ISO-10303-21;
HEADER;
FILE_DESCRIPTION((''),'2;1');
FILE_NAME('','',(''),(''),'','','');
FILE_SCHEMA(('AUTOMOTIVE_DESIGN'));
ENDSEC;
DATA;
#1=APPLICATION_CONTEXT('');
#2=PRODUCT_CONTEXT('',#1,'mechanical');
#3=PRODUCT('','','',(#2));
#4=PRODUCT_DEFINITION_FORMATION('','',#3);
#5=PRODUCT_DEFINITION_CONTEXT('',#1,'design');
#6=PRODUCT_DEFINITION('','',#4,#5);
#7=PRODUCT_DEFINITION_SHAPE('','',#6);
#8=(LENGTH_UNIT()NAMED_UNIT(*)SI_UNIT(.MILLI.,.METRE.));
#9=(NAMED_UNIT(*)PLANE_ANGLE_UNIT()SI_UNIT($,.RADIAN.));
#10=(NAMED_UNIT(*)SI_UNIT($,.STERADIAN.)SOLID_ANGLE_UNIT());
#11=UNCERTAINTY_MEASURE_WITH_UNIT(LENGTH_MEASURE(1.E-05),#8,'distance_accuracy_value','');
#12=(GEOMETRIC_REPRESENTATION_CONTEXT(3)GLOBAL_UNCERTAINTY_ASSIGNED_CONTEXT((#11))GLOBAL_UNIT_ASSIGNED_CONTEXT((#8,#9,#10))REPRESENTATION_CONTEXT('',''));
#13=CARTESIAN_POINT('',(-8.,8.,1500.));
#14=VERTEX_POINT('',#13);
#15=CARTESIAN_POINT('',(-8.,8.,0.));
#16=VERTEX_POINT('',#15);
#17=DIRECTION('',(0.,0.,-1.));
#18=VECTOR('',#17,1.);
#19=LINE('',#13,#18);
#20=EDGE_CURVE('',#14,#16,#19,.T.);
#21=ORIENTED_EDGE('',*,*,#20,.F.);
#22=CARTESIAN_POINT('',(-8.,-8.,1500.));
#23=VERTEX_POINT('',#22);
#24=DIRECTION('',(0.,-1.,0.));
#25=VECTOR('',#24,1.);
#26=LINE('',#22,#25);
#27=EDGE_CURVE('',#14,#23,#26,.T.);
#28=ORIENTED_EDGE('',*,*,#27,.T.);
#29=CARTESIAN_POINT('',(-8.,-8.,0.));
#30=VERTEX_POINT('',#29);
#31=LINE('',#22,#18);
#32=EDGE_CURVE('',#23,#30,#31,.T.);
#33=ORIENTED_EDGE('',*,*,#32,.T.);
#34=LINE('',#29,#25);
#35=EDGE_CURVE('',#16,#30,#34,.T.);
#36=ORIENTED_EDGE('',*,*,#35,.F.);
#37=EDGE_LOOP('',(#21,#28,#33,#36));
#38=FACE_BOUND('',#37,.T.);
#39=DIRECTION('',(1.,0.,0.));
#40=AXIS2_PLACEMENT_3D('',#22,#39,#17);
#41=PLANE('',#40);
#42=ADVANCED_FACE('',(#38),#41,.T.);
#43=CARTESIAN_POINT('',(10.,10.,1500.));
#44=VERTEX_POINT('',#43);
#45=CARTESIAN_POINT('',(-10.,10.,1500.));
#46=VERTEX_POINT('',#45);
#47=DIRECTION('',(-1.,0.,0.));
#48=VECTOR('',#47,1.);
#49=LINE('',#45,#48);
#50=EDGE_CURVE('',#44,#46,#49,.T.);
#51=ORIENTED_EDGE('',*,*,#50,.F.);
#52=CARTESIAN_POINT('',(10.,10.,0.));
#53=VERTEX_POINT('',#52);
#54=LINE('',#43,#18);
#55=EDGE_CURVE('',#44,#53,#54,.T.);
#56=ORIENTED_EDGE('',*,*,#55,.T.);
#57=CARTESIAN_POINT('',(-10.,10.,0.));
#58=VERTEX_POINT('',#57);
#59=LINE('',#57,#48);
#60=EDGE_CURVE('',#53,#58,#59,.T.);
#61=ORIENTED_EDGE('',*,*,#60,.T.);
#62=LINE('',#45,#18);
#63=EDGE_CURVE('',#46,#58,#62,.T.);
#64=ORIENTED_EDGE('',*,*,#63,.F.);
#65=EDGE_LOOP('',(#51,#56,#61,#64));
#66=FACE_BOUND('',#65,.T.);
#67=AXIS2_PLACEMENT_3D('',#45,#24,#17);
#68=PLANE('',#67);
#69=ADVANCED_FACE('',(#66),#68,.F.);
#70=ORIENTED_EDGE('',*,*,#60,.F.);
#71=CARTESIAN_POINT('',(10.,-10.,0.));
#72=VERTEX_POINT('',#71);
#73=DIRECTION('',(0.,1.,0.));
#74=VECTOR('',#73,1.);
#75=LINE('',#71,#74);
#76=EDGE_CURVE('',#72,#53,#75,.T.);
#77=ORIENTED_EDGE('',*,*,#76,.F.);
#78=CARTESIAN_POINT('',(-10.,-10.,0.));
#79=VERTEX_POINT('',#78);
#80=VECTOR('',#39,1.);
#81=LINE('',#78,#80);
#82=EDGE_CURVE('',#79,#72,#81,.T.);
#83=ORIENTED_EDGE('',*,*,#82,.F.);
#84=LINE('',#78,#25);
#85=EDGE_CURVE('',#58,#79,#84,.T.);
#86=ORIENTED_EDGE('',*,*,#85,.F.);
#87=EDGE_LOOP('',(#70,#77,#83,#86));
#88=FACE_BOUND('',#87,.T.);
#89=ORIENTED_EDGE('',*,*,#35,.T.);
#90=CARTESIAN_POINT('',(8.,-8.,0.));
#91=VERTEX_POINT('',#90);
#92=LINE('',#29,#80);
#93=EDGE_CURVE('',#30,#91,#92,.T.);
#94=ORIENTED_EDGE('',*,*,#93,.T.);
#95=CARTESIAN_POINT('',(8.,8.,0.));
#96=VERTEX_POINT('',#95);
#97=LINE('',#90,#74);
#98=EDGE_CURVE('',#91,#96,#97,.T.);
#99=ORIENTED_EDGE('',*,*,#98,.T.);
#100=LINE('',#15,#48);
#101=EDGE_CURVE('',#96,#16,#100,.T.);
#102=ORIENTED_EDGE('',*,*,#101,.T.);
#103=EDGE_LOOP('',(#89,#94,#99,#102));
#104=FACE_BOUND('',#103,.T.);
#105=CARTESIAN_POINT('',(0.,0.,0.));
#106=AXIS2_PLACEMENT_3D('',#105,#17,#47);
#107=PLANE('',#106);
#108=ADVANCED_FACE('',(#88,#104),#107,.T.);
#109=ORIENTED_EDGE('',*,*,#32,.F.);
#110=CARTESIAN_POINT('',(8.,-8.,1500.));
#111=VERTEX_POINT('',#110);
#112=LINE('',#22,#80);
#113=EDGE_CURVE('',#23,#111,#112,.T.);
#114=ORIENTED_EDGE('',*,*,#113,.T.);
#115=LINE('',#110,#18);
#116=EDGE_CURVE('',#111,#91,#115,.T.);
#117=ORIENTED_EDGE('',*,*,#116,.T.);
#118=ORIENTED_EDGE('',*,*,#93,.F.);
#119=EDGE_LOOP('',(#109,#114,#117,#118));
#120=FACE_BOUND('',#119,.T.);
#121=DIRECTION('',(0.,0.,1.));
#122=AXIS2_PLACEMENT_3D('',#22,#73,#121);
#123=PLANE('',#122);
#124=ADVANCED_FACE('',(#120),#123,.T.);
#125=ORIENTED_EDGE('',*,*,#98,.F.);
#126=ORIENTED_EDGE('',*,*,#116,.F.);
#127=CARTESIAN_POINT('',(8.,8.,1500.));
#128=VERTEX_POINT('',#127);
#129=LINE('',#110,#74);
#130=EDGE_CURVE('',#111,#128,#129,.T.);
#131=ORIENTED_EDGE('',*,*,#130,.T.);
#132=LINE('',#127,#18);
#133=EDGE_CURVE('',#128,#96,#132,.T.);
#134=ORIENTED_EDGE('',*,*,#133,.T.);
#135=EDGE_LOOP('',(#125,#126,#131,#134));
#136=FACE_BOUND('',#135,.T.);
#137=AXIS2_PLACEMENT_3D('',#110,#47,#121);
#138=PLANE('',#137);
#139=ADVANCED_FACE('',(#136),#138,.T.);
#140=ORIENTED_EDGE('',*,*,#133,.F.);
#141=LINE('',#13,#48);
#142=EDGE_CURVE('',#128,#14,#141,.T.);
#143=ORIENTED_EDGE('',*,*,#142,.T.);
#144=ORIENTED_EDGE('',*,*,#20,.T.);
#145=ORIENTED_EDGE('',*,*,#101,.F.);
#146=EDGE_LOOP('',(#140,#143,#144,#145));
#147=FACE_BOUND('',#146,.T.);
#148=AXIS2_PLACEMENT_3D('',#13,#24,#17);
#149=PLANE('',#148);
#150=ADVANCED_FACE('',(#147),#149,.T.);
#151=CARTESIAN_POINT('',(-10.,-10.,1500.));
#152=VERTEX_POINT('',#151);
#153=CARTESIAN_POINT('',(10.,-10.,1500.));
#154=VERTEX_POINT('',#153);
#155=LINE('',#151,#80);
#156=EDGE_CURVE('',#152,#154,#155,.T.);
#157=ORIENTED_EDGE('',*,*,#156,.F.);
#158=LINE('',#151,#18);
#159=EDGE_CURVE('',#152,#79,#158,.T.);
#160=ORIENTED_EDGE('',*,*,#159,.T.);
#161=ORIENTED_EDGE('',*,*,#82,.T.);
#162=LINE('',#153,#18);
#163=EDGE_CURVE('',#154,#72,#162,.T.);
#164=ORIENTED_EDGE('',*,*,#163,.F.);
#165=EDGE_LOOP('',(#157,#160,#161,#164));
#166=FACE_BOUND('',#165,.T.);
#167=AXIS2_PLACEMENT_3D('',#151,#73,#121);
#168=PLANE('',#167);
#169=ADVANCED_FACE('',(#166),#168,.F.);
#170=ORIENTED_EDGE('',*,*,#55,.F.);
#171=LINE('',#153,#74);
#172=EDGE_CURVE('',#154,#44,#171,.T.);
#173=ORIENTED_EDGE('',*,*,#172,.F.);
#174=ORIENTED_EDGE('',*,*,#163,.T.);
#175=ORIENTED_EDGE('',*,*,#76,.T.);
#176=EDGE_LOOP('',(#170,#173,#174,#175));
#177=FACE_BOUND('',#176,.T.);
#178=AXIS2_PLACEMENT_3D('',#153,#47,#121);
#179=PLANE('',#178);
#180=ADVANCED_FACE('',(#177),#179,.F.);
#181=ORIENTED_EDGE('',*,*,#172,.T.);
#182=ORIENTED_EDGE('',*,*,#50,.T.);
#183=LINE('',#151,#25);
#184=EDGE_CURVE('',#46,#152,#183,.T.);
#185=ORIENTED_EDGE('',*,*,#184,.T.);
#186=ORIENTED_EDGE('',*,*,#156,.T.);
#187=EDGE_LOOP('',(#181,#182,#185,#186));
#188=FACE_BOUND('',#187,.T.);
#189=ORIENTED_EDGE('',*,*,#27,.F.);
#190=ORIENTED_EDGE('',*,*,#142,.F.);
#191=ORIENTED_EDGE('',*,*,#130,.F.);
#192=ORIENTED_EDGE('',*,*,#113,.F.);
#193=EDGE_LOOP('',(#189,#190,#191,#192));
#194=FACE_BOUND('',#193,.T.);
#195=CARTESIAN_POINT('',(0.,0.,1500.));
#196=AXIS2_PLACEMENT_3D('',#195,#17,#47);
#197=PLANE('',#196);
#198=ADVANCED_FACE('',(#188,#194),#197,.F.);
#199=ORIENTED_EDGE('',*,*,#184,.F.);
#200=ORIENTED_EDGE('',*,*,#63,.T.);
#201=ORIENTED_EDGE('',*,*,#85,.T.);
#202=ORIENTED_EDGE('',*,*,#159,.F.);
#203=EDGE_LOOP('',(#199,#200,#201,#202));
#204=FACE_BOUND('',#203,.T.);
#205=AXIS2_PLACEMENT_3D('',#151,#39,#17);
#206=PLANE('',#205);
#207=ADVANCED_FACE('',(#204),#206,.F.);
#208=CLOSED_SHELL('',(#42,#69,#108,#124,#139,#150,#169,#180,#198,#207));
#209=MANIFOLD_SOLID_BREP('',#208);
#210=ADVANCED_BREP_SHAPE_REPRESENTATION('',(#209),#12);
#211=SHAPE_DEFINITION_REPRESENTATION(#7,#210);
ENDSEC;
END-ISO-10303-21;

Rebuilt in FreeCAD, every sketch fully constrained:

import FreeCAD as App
import Part
import Sketcher
Q = App.Units.Quantity

doc = App.newDocument("Part")
body = doc.addObject("PartDesign::Body", "Body")

sketch1 = doc.addObject("Sketcher::SketchObject", "Sketch")
body.addObject(sketch1)
sketch1.AttachmentSupport = (doc.XY_Plane, [""])
sketch1.MapMode = "FlatFace"
sketch1.addGeometry([
    Part.LineSegment(App.Vector(-10, 10, 0), App.Vector(-10, -10, 0)),
    Part.LineSegment(App.Vector(-10, -10, 0), App.Vector(10, -10, 0)),
    Part.LineSegment(App.Vector(10, -10, 0), App.Vector(10, 10, 0)),
    Part.LineSegment(App.Vector(10, 10, 0), App.Vector(-10, 10, 0)),
    Part.LineSegment(App.Vector(8, -8, 0), App.Vector(-8, -8, 0)),
    Part.LineSegment(App.Vector(-8, -8, 0), App.Vector(-8, 8, 0)),
    Part.LineSegment(App.Vector(-8, 8, 0), App.Vector(8, 8, 0)),
    Part.LineSegment(App.Vector(8, 8, 0), App.Vector(8, -8, 0)),
], False)
sketch1.addConstraint([
    Sketcher.Constraint("Coincident", 0, 2, 1, 1),
    Sketcher.Constraint("Coincident", 1, 2, 2, 1),
    Sketcher.Constraint("Coincident", 2, 2, 3, 1),
    Sketcher.Constraint("Coincident", 3, 2, 0, 1),
    Sketcher.Constraint("Coincident", 4, 2, 5, 1),
    Sketcher.Constraint("Coincident", 5, 2, 6, 1),
    Sketcher.Constraint("Coincident", 6, 2, 7, 1),
    Sketcher.Constraint("Coincident", 7, 2, 4, 1),
    Sketcher.Constraint("Vertical", 0),
    Sketcher.Constraint("Horizontal", 1),
    Sketcher.Constraint("Vertical", 2),
    Sketcher.Constraint("Horizontal", 3),
    Sketcher.Constraint("Horizontal", 4),
    Sketcher.Constraint("Vertical", 5),
    Sketcher.Constraint("Horizontal", 6),
    Sketcher.Constraint("Vertical", 7),
    Sketcher.Constraint("Symmetric", 0, 2, 2, 2, -1, 1),
    Sketcher.Constraint("Symmetric", 4, 2, 6, 2, -1, 1),
    Sketcher.Constraint("Equal", 3, 0),
    Sketcher.Constraint("Equal", 6, 5),
    Sketcher.Constraint("DistanceX", 1, 1, 1, 2, Q("20 mm")),
    Sketcher.Constraint("DistanceX", 4, 2, 4, 1, Q("16 mm")),
])
pad1 = doc.addObject("PartDesign::Pad", "Pad")
body.addObject(pad1)
pad1.Profile = sketch1
pad1.Length = 1500

doc.recompute()
